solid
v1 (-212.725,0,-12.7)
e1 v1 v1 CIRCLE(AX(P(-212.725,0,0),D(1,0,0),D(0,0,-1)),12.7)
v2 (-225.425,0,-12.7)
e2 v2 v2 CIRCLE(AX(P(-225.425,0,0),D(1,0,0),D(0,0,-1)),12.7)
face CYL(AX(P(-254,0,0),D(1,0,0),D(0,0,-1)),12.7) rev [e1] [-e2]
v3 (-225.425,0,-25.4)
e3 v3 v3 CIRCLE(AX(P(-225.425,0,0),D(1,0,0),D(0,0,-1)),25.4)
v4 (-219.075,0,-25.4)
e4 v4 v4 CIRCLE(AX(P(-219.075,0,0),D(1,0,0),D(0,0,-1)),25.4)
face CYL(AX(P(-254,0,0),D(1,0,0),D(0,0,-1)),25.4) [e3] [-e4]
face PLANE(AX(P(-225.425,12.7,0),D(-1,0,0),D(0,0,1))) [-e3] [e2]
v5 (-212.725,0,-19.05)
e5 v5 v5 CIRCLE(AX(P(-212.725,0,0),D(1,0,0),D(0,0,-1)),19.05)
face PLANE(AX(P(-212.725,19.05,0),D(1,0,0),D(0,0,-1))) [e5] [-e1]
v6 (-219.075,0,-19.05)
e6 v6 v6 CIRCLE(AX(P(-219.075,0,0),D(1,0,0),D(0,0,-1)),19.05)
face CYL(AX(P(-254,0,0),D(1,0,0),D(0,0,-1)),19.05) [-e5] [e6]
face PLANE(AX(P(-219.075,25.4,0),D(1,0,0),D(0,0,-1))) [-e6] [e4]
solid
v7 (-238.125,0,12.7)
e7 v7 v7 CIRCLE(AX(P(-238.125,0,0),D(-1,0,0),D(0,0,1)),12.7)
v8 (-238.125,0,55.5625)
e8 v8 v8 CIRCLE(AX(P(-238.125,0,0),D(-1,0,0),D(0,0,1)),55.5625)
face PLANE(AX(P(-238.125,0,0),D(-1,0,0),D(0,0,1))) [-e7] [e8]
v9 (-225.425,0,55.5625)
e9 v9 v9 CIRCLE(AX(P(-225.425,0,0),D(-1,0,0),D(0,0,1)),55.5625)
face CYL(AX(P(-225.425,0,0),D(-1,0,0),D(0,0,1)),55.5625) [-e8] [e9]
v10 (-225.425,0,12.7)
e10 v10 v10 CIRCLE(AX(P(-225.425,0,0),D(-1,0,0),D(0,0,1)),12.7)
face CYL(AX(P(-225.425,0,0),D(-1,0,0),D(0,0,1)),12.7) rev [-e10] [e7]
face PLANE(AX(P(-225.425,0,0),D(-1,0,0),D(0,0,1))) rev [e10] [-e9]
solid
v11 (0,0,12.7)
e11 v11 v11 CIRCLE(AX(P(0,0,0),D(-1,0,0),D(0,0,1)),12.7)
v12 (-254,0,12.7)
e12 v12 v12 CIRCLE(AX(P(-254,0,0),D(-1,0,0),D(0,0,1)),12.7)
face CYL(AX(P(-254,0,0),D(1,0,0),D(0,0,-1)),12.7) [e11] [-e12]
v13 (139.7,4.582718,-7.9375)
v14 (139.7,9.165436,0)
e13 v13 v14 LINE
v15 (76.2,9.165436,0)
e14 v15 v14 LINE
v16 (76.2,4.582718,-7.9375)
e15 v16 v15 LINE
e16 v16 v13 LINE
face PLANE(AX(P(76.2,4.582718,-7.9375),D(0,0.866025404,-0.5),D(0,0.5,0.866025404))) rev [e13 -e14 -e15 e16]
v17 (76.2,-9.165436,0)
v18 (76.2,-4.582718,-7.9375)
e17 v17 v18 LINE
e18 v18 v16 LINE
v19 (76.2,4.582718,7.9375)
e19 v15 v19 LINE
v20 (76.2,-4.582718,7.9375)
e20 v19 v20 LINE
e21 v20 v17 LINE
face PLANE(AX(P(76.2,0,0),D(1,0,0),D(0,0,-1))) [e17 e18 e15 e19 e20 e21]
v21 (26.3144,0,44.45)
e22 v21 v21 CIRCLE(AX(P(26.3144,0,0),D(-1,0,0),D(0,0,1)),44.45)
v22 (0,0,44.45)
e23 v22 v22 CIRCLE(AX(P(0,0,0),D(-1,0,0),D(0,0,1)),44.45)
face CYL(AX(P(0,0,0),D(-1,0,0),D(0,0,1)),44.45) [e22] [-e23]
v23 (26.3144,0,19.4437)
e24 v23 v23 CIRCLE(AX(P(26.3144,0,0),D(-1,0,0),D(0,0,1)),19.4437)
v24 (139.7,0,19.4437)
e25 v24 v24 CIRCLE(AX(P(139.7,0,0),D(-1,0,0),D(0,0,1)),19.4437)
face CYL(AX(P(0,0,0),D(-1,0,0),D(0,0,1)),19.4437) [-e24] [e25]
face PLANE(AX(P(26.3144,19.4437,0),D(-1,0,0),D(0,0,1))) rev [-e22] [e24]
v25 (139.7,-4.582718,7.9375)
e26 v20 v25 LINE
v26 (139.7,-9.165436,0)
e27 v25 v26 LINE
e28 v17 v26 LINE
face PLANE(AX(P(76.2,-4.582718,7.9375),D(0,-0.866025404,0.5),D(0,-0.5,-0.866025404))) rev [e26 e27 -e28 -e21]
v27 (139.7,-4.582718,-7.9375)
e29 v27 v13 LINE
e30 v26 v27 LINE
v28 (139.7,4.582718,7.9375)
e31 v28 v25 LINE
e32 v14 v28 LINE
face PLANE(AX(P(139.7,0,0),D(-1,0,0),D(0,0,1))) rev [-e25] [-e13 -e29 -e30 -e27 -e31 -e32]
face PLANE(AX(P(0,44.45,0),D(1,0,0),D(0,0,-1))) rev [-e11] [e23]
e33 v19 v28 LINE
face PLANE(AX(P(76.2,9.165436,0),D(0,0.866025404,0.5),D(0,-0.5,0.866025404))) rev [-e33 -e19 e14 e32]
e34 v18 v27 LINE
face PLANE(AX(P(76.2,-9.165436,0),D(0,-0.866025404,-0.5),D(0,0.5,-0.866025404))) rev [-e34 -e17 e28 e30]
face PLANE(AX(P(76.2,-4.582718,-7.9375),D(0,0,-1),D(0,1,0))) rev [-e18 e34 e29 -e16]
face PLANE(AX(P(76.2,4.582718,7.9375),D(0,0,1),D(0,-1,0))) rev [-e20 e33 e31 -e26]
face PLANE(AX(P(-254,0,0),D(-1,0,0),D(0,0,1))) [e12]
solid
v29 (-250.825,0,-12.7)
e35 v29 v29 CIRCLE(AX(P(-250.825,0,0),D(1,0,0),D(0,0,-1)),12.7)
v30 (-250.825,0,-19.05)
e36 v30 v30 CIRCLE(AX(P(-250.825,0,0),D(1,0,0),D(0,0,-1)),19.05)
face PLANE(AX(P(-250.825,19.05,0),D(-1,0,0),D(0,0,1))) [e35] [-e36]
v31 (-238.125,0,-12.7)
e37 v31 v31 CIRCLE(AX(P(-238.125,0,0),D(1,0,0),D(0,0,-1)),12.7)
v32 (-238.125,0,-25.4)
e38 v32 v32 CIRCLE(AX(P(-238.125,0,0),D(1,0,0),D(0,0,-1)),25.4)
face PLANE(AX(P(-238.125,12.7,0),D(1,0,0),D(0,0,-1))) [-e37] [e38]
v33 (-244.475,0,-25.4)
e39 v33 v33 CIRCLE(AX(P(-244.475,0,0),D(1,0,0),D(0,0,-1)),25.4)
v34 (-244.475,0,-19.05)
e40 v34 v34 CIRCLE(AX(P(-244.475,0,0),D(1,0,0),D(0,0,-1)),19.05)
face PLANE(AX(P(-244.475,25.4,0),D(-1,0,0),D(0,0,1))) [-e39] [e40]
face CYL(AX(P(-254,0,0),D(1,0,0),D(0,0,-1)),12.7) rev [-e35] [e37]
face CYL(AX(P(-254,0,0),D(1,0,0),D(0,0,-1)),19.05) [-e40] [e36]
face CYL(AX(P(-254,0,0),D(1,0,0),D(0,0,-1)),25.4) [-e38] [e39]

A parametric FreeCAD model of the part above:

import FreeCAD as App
import Part
import Sketcher
Q = App.Units.Quantity

doc = App.newDocument("Part")
body = doc.addObject("PartDesign::Body", "Body")

# Sketch on XY plane
sketch1 = body.newObject("Sketcher::SketchObject", "Sketch")
sketch1.AttachmentSupport = (doc.getObject("XY_Plane"), [""])
sketch1.MapMode = "FlatFace"
sketch1.addGeometry([
    Part.LineSegment(App.Vector(139.7, 0, 0), App.Vector(139.7, 19.4437, 0)),  # 0
    Part.LineSegment(App.Vector(139.7, 19.4437, 0), App.Vector(26.3144, 19.4437, 0)),  # 1
    Part.LineSegment(App.Vector(26.3144, 19.4437, 0), App.Vector(26.3144, 44.45, 0)),  # 2
    Part.LineSegment(App.Vector(26.3144, 44.45, 0), App.Vector(0, 44.45, 0)),  # 3
    Part.LineSegment(App.Vector(0, 44.45, 0), App.Vector(0, 0, 0)),  # 4
    Part.LineSegment(App.Vector(0, 0, 0), App.Vector(139.7, 0, 0)),  # 5
], False)
sketch1.addConstraint([
    Sketcher.Constraint("Coincident", 0, 2, 1, 1),
    Sketcher.Constraint("Coincident", 1, 2, 2, 1),
    Sketcher.Constraint("Coincident", 2, 2, 3, 1),
    Sketcher.Constraint("Coincident", 3, 2, 4, 1),
    Sketcher.Constraint("Coincident", 4, 2, 5, 1),
    Sketcher.Constraint("Coincident", 5, 2, 0, 1),
    Sketcher.Constraint("Vertical", 0),
    Sketcher.Constraint("Horizontal", 1),
    Sketcher.Constraint("Vertical", 2),
    Sketcher.Constraint("Horizontal", 3),
    Sketcher.Constraint("Vertical", 4),
    Sketcher.Constraint("Horizontal", 5),
    Sketcher.Constraint("Coincident", 4, 2, -1, 1),
    Sketcher.Constraint("DistanceX", 5, 1, 5, 2, Q("5.5 in")),
    Sketcher.Constraint("DistanceY", 4, 2, 4, 1, Q("1.75 in")),
    Sketcher.Constraint("DistanceX", 1, 2, 1, 1, Q("4.464 in")),
    Sketcher.Constraint("DistanceY", 0, 1, 0, 2, Q("0.7655 in")),
])
revolution = body.newObject("PartDesign::Revolution", "Revolution")
revolution.Profile = sketch1
revolution.ReferenceAxis = (sketch1, ["H_Axis"])
revolution.Angle = 360

# Sketch on YZ plane
sketch2 = body.newObject("Sketcher::SketchObject", "Sketch001")
sketch2.AttachmentSupport = (doc.getObject("YZ_Plane"), [""])
sketch2.MapMode = "FlatFace"
sketch2.addGeometry(Part.Circle(App.Vector(0, 0, 0), App.Vector(0, 0, 1), 12.7), False)
sketch2.addConstraint([
    Sketcher.Constraint("Coincident", 0, 3, -1, 1),
    Sketcher.Constraint("Diameter", 0, Q("1 in")),
])
pad1 = body.newObject("PartDesign::Pad", "Pad")
pad1.Profile = sketch2
pad1.Length = Q("10 in")
pad1.Reversed = True

# Sketch on YZ plane
sketch3 = body.newObject("Sketcher::SketchObject", "Sketch002")
sketch3.AttachmentSupport = (doc.getObject("YZ_Plane"), [""])
sketch3.MapMode = "FlatFace"
sketch3.AttachmentOffset = App.Placement(App.Vector(0, 0, 5.5 * 25.4), App.Rotation())
sketch3.addGeometry([
    Part.LineSegment(App.Vector(9.165436, 0, 0), App.Vector(4.582718, 7.9375, 0)),  # 0
    Part.LineSegment(App.Vector(4.582718, 7.9375, 0), App.Vector(-4.582718, 7.9375, 0)),  # 1
    Part.LineSegment(App.Vector(-4.582718, 7.9375, 0), App.Vector(-9.165436, 0, 0)),  # 2
    Part.LineSegment(App.Vector(-9.165436, 0, 0), App.Vector(-4.582718, -7.9375, 0)),  # 3
    Part.LineSegment(App.Vector(-4.582718, -7.9375, 0), App.Vector(4.582718, -7.9375, 0)),  # 4
    Part.LineSegment(App.Vector(4.582718, -7.9375, 0), App.Vector(9.165436, 0, 0)),  # 5
], False)
sketch3.addConstraint([
    Sketcher.Constraint("Coincident", 0, 2, 1, 1),
    Sketcher.Constraint("Coincident", 1, 2, 2, 1),
    Sketcher.Constraint("Coincident", 2, 2, 3, 1),
    Sketcher.Constraint("Coincident", 3, 2, 4, 1),
    Sketcher.Constraint("Coincident", 4, 2, 5, 1),
    Sketcher.Constraint("Coincident", 5, 2, 0, 1),
    Sketcher.Constraint("Horizontal", 1),
    Sketcher.Constraint("Horizontal", 4),
    Sketcher.Constraint("Symmetric", 0, 2, 3, 2, -1, 1),
    Sketcher.Constraint("Symmetric", 2, 2, 5, 2, -1, 1),
    Sketcher.Constraint("PointOnObject", 2, 2, -1),
    Sketcher.Constraint("Parallel", 2, 5),
    Sketcher.Constraint("Vertical", 1, 2, 3, 2),
    Sketcher.Constraint("Angle", 0, Q("120 deg")),
    Sketcher.Constraint("DistanceY", -1, 1, 0, 2, Q("0.3125 in")),
    Sketcher.Constraint("DistanceX", 1, 2, 1, 1, Q("9.165436 mm")),
])
pocket1 = body.newObject("PartDesign::Pocket", "Pocket")
pocket1.Profile = sketch3
pocket1.Length = Q("2.5 in")
body2 = doc.addObject("PartDesign::Body", "Body001")

# Sketch on YZ plane
sketch4 = body2.newObject("Sketcher::SketchObject", "Sketch003")
sketch4.AttachmentSupport = (doc.getObject("YZ_Plane001"), [""])
sketch4.MapMode = "FlatFace"
sketch4.AttachmentOffset = App.Placement(App.Vector(0, 0, -9.375 * 25.4), App.Rotation())
sketch4.addGeometry([
    Part.Circle(App.Vector(0, 0, 0), App.Vector(0, 0, 1), 55.5625),
    Part.Circle(App.Vector(0, 0, 0), App.Vector(0, 0, 1), 12.7),
], False)
sketch4.addConstraint([
    Sketcher.Constraint("Coincident", 0, 3, -1, 1),
    Sketcher.Constraint("Coincident", 1, 3, -1, 1),
    Sketcher.Constraint("Diameter", 1, Q("1 in")),
    Sketcher.Constraint("Diameter", 0, Q("4.375 in")),
])
pad2 = body2.newObject("PartDesign::Pad", "Pad001")
pad2.Profile = sketch4
pad2.Length = Q("0.5 in")
body3 = doc.addObject("PartDesign::Body", "Body002")
body3.AllowCompound = True

# Sketch on XY plane
sketch5 = body3.newObject("Sketcher::SketchObject", "Sketch004")
sketch5.AttachmentSupport = (doc.getObject("XY_Plane002"), [""])
sketch5.MapMode = "FlatFace"
sketch5.addGeometry([
    Part.LineSegment(App.Vector(-238.125, 12.7, 0), App.Vector(-238.125, 25.4, 0)),  # 0
    Part.LineSegment(App.Vector(-238.125, 25.4, 0), App.Vector(-244.475, 25.4, 0)),  # 1
    Part.LineSegment(App.Vector(-244.475, 25.4, 0), App.Vector(-244.475, 19.05, 0)),  # 2
    Part.LineSegment(App.Vector(-244.475, 19.05, 0), App.Vector(-250.825, 19.05, 0)),  # 3
    Part.LineSegment(App.Vector(-250.825, 19.05, 0), App.Vector(-250.825, 12.7, 0)),  # 4
    Part.LineSegment(App.Vector(-250.825, 12.7, 0), App.Vector(-238.125, 12.7, 0)),  # 5
    Part.LineSegment(App.Vector(-225.425, 12.7, 0), App.Vector(-212.725, 12.7, 0)),  # 6
    Part.LineSegment(App.Vector(-212.725, 12.7, 0), App.Vector(-212.725, 19.05, 0)),  # 7
    Part.LineSegment(App.Vector(-212.725, 19.05, 0), App.Vector(-219.075, 19.05, 0)),  # 8
    Part.LineSegment(App.Vector(-219.075, 19.05, 0), App.Vector(-219.075, 25.4, 0)),  # 9
    Part.LineSegment(App.Vector(-219.075, 25.4, 0), App.Vector(-225.425, 25.4, 0)),  # 10
    Part.LineSegment(App.Vector(-225.425, 25.4, 0), App.Vector(-225.425, 12.7, 0)),  # 11
], False)
sketch5.addConstraint([
    Sketcher.Constraint("Coincident", 0, 2, 1, 1),
    Sketcher.Constraint("Coincident", 1, 2, 2, 1),
    Sketcher.Constraint("Coincident", 2, 2, 3, 1),
    Sketcher.Constraint("Coincident", 3, 2, 4, 1),
    Sketcher.Constraint("Coincident", 4, 2, 5, 1),
    Sketcher.Constraint("Coincident", 5, 2, 0, 1),
    Sketcher.Constraint("Coincident", 6, 2, 7, 1),
    Sketcher.Constraint("Coincident", 7, 2, 8, 1),
    Sketcher.Constraint("Coincident", 8, 2, 9, 1),
    Sketcher.Constraint("Coincident", 9, 2, 10, 1),
    Sketcher.Constraint("Coincident", 10, 2, 11, 1),
    Sketcher.Constraint("Coincident", 11, 2, 6, 1),
    Sketcher.Constraint("Vertical", 0),
    Sketcher.Constraint("Horizontal", 1),
    Sketcher.Constraint("Vertical", 2),
    Sketcher.Constraint("Horizontal", 3),
    Sketcher.Constraint("Vertical", 4),
    Sketcher.Constraint("Horizontal", 5),
    Sketcher.Constraint("Horizontal", 6),
    Sketcher.Constraint("Vertical", 7),
    Sketcher.Constraint("Horizontal", 8),
    Sketcher.Constraint("Vertical", 9),
    Sketcher.Constraint("Horizontal", 10),
    Sketcher.Constraint("Vertical", 11),
    Sketcher.Constraint("Horizontal", 5, 2, 6, 2),
    Sketcher.Constraint("Horizontal", 3, 2, 7, 2),
    Sketcher.Constraint("Horizontal", 1, 2, 9, 2),
    Sketcher.Constraint("Equal", 1, 3),
    Sketcher.Constraint("Equal", 5, 6),
    Sketcher.Constraint("Equal", 3, 8),
    Sketcher.Constraint("Equal", 6, 0),
    Sketcher.Constraint("Equal", 10, 2),
    Sketcher.Constraint("DistanceX", 5, 1, 5, 2, Q("0.5 in")),
    Sketcher.Constraint("DistanceY", -1, 1, 0, 2, Q("1 in")),
    Sketcher.Constraint("DistanceX", 5, 2, 6, 2, Q("1 in")),
    Sketcher.Constraint("DistanceX", 0, 2, -1, 1, Q("9.375 in")),
])
revolution2 = body3.newObject("PartDesign::Revolution", "Revolution001")
revolution2.Profile = sketch5
revolution2.ReferenceAxis = (sketch5, ["H_Axis"])
revolution2.Angle = 360

doc.recompute()
